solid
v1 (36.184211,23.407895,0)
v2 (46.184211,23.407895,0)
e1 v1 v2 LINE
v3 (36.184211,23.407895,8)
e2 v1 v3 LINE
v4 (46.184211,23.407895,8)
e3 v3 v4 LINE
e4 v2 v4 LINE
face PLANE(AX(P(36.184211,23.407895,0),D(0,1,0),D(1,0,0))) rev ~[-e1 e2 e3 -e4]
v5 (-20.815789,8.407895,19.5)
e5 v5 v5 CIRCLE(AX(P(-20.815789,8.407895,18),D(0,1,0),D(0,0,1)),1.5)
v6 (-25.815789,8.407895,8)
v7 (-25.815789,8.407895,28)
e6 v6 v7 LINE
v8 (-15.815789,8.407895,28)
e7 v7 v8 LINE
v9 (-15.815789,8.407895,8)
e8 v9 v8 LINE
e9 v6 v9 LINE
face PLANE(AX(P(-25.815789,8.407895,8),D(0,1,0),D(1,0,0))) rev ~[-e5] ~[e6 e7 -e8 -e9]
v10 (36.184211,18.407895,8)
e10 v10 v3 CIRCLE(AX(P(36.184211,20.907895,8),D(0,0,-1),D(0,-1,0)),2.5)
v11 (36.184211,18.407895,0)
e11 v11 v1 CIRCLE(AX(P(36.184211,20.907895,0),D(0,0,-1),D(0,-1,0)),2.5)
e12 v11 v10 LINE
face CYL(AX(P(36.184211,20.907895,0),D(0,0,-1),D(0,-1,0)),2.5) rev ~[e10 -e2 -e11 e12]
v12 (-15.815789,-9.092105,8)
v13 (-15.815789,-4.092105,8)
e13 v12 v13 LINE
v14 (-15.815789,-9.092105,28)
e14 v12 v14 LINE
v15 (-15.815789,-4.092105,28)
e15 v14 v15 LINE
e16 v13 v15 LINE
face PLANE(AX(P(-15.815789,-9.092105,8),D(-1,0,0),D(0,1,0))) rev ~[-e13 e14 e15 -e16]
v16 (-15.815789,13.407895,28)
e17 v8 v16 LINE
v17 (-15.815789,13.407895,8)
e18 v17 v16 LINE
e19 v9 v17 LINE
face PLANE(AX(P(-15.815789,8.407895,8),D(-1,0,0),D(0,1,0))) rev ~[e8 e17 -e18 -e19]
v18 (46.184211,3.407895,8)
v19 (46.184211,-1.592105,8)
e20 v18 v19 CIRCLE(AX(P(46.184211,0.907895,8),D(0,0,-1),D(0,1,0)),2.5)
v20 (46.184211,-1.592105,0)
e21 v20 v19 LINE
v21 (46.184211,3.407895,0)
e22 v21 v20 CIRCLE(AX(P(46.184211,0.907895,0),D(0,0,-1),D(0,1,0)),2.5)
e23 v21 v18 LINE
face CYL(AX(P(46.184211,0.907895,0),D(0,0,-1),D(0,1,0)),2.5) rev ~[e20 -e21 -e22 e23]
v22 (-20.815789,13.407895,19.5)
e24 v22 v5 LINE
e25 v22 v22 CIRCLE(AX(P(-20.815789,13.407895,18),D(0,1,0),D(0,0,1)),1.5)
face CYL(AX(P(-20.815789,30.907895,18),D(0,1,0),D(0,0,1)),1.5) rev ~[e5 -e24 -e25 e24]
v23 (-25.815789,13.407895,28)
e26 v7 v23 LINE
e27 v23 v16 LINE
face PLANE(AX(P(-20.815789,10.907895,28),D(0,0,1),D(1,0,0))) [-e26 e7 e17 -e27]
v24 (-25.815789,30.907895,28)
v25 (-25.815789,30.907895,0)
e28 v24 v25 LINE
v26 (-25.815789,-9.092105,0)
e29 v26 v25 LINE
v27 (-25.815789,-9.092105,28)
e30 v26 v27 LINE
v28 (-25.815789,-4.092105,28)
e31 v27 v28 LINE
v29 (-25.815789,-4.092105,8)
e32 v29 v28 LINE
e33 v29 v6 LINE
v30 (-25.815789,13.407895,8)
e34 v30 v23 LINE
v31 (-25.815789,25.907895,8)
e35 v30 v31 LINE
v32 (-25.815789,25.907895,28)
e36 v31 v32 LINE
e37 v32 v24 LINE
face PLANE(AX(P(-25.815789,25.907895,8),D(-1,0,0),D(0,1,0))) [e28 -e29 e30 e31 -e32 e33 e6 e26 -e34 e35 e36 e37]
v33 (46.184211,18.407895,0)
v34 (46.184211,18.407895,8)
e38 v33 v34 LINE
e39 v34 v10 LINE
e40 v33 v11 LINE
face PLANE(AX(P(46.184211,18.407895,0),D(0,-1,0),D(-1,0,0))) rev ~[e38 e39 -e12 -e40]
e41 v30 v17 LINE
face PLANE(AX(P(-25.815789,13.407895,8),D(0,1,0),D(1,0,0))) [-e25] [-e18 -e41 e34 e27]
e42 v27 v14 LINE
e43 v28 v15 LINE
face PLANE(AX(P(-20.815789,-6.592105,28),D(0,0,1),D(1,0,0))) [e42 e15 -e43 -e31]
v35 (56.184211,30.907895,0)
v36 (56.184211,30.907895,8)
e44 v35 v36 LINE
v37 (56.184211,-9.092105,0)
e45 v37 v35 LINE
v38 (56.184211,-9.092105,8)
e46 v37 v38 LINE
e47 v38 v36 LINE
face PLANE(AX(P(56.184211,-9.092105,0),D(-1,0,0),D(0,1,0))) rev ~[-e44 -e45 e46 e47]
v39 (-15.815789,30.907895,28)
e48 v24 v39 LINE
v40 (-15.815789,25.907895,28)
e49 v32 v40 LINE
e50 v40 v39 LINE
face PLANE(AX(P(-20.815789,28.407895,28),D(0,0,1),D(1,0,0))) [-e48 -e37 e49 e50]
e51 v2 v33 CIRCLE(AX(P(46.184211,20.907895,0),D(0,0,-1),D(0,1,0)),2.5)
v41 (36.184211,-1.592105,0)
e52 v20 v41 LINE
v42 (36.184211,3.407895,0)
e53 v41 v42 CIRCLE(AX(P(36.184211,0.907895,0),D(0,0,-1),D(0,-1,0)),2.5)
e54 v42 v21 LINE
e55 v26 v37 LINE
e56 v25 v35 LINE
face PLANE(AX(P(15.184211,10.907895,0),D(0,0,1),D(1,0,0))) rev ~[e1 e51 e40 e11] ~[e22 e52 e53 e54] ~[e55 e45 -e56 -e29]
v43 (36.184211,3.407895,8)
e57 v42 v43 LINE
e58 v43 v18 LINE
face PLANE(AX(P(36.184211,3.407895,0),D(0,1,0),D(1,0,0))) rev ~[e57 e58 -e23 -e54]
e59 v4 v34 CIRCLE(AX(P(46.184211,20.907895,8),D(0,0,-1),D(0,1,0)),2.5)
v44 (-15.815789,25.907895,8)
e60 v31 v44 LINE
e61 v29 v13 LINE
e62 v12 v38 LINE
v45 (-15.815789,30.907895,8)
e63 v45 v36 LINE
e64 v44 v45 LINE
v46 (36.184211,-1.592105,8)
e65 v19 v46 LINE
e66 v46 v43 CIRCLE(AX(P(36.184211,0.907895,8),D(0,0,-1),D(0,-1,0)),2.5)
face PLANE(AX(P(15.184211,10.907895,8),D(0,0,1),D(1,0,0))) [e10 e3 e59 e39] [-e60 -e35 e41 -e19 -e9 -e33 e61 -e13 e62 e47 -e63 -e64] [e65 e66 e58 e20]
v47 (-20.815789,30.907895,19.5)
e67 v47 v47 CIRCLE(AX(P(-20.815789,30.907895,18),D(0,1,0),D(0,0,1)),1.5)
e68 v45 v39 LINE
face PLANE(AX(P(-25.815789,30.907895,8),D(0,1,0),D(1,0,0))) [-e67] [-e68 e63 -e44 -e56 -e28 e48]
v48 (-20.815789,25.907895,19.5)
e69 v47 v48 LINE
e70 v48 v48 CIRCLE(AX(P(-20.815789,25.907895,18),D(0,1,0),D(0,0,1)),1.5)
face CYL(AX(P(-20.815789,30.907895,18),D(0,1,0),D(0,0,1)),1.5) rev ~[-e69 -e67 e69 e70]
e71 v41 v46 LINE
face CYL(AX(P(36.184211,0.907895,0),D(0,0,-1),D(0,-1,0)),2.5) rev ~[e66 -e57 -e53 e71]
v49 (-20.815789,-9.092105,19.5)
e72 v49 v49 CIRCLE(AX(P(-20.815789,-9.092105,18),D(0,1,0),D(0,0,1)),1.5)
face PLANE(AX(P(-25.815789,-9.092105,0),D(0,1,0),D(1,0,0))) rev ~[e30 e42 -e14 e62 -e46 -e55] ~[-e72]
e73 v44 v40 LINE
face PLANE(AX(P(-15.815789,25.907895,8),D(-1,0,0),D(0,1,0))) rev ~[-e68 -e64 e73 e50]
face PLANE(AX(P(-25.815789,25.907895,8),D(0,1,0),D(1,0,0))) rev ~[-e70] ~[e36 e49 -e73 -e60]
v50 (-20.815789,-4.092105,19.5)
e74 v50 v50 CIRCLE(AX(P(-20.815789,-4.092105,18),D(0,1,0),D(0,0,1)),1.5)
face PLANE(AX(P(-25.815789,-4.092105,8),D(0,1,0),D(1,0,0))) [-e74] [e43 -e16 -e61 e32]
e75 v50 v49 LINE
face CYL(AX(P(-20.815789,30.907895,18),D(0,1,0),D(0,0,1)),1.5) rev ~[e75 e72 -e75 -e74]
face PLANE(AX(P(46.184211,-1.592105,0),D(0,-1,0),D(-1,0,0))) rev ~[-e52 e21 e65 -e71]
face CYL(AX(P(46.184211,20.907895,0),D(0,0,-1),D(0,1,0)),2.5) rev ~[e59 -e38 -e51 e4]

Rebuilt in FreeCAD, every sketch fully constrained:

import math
import FreeCAD as App
import Part
import Sketcher

V = App.Vector

doc = App.newDocument("Part")
params = doc.addObject("Spreadsheet::Sheet", "Params")
for row, (alias, value) in enumerate([
    ("sketch1_radius", "2.5 mm"),
    ("sketch1_width", "82 mm"),
    ("sketch1_width2", "10 mm"),
    ("sketch1_height", "40 mm"),
    ("pad1_length", "8 mm"),
    ("sketch2_width", "10 mm"),
    ("sketch2_height", "5 mm"),
    ("pad2_length", "20 mm"),
    ("sketch3_diameter", "3 mm"),
    ("pocket1_length", "47 mm"),
], start=1):
    params.set(f"A{row}", alias)
    params.set(f"B{row}", "=" + value)
    params.setAlias(f"B{row}", alias)

body = doc.addObject("PartDesign::Body", "Body")

# Sketch on XY plane
sketch1 = doc.addObject("Sketcher::SketchObject", "Sketch")
body.addObject(sketch1)
sketch1.AttachmentSupport = (doc.XY_Plane, [""])
sketch1.MapMode = "FlatFace"
sketch1.addGeometry(Part.LineSegment(V(-25.8, 30.9, 0), V(-25.8, -9.1, 0)), False)
sketch1.addGeometry(Part.LineSegment(V(-25.8, -9.1, 0), V(56.2, -9.1, 0)), False)
sketch1.addGeometry(Part.LineSegment(V(56.2, -9.1, 0), V(56.2, 30.9, 0)), False)
sketch1.addGeometry(Part.LineSegment(V(56.2, 30.9, 0), V(-25.8, 30.9, 0)), False)
sketch1.addGeometry(Part.ArcOfCircle(Part.Circle(V(46.2, 0.9, 0), V(0, 0, 1), 2.5), math.radians(-90), math.radians(90)), False)
sketch1.addGeometry(Part.LineSegment(V(46.2, -1.6, 0), V(36.2, -1.6, 0)), False)
sketch1.addGeometry(Part.ArcOfCircle(Part.Circle(V(36.2, 0.9, 0), V(0, 0, 1), 2.5), math.radians(90), math.radians(270)), False)
sketch1.addGeometry(Part.LineSegment(V(36.2, 3.4, 0), V(46.2, 3.4, 0)), False)
sketch1.addGeometry(Part.ArcOfCircle(Part.Circle(V(46.2, 20.9, 0), V(0, 0, 1), 2.5), math.radians(-90), math.radians(90)), False)
sketch1.addGeometry(Part.LineSegment(V(46.2, 18.4, 0), V(36.2, 18.4, 0)), False)
sketch1.addGeometry(Part.ArcOfCircle(Part.Circle(V(36.2, 20.9, 0), V(0, 0, 1), 2.5), math.radians(90), math.radians(270)), False)
sketch1.addGeometry(Part.LineSegment(V(36.2, 23.4, 0), V(46.2, 23.4, 0)), False)
sketch1.addConstraint(Sketcher.Constraint("Coincident", 0, 2, 1, 1))
sketch1.addConstraint(Sketcher.Constraint("Coincident", 1, 2, 2, 1))
sketch1.addConstraint(Sketcher.Constraint("Coincident", 2, 2, 3, 1))
sketch1.addConstraint(Sketcher.Constraint("Coincident", 3, 2, 0, 1))
sketch1.addConstraint(Sketcher.Constraint("Tangent", 4, 1, 5, 1))
sketch1.addConstraint(Sketcher.Constraint("Tangent", 5, 2, 6, 2))
sketch1.addConstraint(Sketcher.Constraint("Tangent", 6, 1, 7, 1))
sketch1.addConstraint(Sketcher.Constraint("Tangent", 7, 2, 4, 2))
sketch1.addConstraint(Sketcher.Constraint("Tangent", 8, 1, 9, 1))
sketch1.addConstraint(Sketcher.Constraint("Tangent", 9, 2, 10, 2))
sketch1.addConstraint(Sketcher.Constraint("Tangent", 10, 1, 11, 1))
sketch1.addConstraint(Sketcher.Constraint("Tangent", 11, 2, 8, 2))
sketch1.addConstraint(Sketcher.Constraint("Vertical", 0))
sketch1.addConstraint(Sketcher.Constraint("Horizontal", 1))
sketch1.addConstraint(Sketcher.Constraint("Vertical", 2))
sketch1.addConstraint(Sketcher.Constraint("Horizontal", 3))
sketch1.addConstraint(Sketcher.Constraint("Horizontal", 5))
sketch1.addConstraint(Sketcher.Constraint("Horizontal", 7))
sketch1.addConstraint(Sketcher.Constraint("Horizontal", 9))
sketch1.addConstraint(Sketcher.Constraint("Horizontal", 11))
sketch1.addConstraint(Sketcher.Constraint("Equal", 6, 8))
sketch1.addConstraint(Sketcher.Constraint("Vertical", 4, 3, 8, 3))
sketch1.addConstraint(Sketcher.Constraint("Vertical", 6, 3, 10, 3))
sketch1.addConstraint(Sketcher.Constraint("Radius", 4, 2.5))
sketch1.addConstraint(Sketcher.Constraint("DistanceX", 1, 1, 1, 2, 82.0))
sketch1.addConstraint(Sketcher.Constraint("DistanceX", 5, 2, 5, 1, 10.0))
sketch1.addConstraint(Sketcher.Constraint("DistanceY", 0, 2, 0, 1, 40.0))
sketch1.addConstraint(Sketcher.Constraint("DistanceY", 4, 3, 8, 3, 20.0))
sketch1.addConstraint(Sketcher.Constraint("DistanceX", 0, 2, 6, 3, 62.0))
sketch1.addConstraint(Sketcher.Constraint("DistanceY", 0, 2, 6, 3, 10.0))
sketch1.addConstraint(Sketcher.Constraint("DistanceX", -1, 1, 4, 3, 46.184211))
sketch1.addConstraint(Sketcher.Constraint("DistanceY", -1, 1, 4, 3, 0.907895))
sketch1.setExpression("Constraints[23]", "Params.sketch1_radius")
sketch1.setExpression("Constraints[24]", "Params.sketch1_width")
sketch1.setExpression("Constraints[25]", "Params.sketch1_width2")
sketch1.setExpression("Constraints[26]", "Params.sketch1_height")
pad1 = doc.addObject("PartDesign::Pad", "Pad")
body.addObject(pad1)
pad1.Profile = sketch1
pad1.setExpression("Length", "Params.pad1_length")

# Sketch on XY plane
sketch2 = doc.addObject("Sketcher::SketchObject", "Sketch001")
body.addObject(sketch2)
sketch2.AttachmentSupport = (doc.XY_Plane, [""])
sketch2.MapMode = "FlatFace"
sketch2.AttachmentOffset = App.Placement(V(0, 0, 8), App.Rotation())
sketch2.addGeometry(Part.LineSegment(V(-26, 31, 0), V(-26, 26, 0)), False)
sketch2.addGeometry(Part.LineSegment(V(-26, 26, 0), V(-16, 26, 0)), False)
sketch2.addGeometry(Part.LineSegment(V(-16, 26, 0), V(-16, 31, 0)), False)
sketch2.addGeometry(Part.LineSegment(V(-16, 31, 0), V(-26, 31, 0)), False)
sketch2.addGeometry(Part.LineSegment(V(-26, -4, 0), V(-26, -9, 0)), False)
sketch2.addGeometry(Part.LineSegment(V(-26, -9, 0), V(-16, -9, 0)), False)
sketch2.addGeometry(Part.LineSegment(V(-16, -9, 0), V(-16, -4, 0)), False)
sketch2.addGeometry(Part.LineSegment(V(-16, -4, 0), V(-26, -4, 0)), False)
sketch2.addGeometry(Part.LineSegment(V(-26, 13, 0), V(-26, 8, 0)), False)
sketch2.addGeometry(Part.LineSegment(V(-26, 8, 0), V(-16, 8, 0)), False)
sketch2.addGeometry(Part.LineSegment(V(-16, 8, 0), V(-16, 13, 0)), False)
sketch2.addGeometry(Part.LineSegment(V(-16, 13, 0), V(-26, 13, 0)), False)
sketch2.addConstraint(Sketcher.Constraint("Coincident", 0, 2, 1, 1))
sketch2.addConstraint(Sketcher.Constraint("Coincident", 1, 2, 2, 1))
sketch2.addConstraint(Sketcher.Constraint("Coincident", 2, 2, 3, 1))
sketch2.addConstraint(Sketcher.Constraint("Coincident", 3, 2, 0, 1))
sketch2.addConstraint(Sketcher.Constraint("Coincident", 4, 2, 5, 1))
sketch2.addConstraint(Sketcher.Constraint("Coincident", 5, 2, 6, 1))
sketch2.addConstraint(Sketcher.Constraint("Coincident", 6, 2, 7, 1))
sketch2.addConstraint(Sketcher.Constraint("Coincident", 7, 2, 4, 1))
sketch2.addConstraint(Sketcher.Constraint("Coincident", 8, 2, 9, 1))
sketch2.addConstraint(Sketcher.Constraint("Coincident", 9, 2, 10, 1))
sketch2.addConstraint(Sketcher.Constraint("Coincident", 10, 2, 11, 1))
sketch2.addConstraint(Sketcher.Constraint("Coincident", 11, 2, 8, 1))
sketch2.addConstraint(Sketcher.Constraint("Vertical", 0))
sketch2.addConstraint(Sketcher.Constraint("Horizontal", 1))
sketch2.addConstraint(Sketcher.Constraint("Vertical", 2))
sketch2.addConstraint(Sketcher.Constraint("Horizontal", 3))
sketch2.addConstraint(Sketcher.Constraint("Vertical", 4))
sketch2.addConstraint(Sketcher.Constraint("Horizontal", 5))
sketch2.addConstraint(Sketcher.Constraint("Vertical", 6))
sketch2.addConstraint(Sketcher.Constraint("Horizontal", 7))
sketch2.addConstraint(Sketcher.Constraint("Vertical", 8))
sketch2.addConstraint(Sketcher.Constraint("Horizontal", 9))
sketch2.addConstraint(Sketcher.Constraint("Vertical", 10))
sketch2.addConstraint(Sketcher.Constraint("Horizontal", 11))
sketch2.addConstraint(Sketcher.Constraint("Vertical", 3, 2, 4, 2))
sketch2.addConstraint(Sketcher.Constraint("Vertical", 2, 2, 5, 2))
sketch2.addConstraint(Sketcher.Constraint("Vertical", 7, 2, 8, 2))
sketch2.addConstraint(Sketcher.Constraint("Vertical", 6, 2, 9, 2))
sketch2.addConstraint(Sketcher.Constraint("Equal", 2, 4))
sketch2.addConstraint(Sketcher.Constraint("Equal", 6, 8))
sketch2.addConstraint(Sketcher.Constraint("DistanceX", 1, 1, 1, 2, 10.0))
sketch2.addConstraint(Sketcher.Constraint("DistanceY", 0, 2, 0, 1, 5.0))
sketch2.addConstraint(Sketcher.Constraint("DistanceY", 4, 2, 0, 2, 35.0))
sketch2.addConstraint(Sketcher.Constraint("DistanceY", 7, 2, 8, 2, 12.5))
sketch2.addConstraint(Sketcher.Constraint("DistanceX", 0, 2, -1, 1, 25.815789))
sketch2.addConstraint(Sketcher.Constraint("DistanceY", -1, 1, 0, 2, 25.907895))
sketch2.setExpression("Constraints[30]", "Params.sketch2_width")
sketch2.setExpression("Constraints[31]", "Params.sketch2_height")
pad2 = doc.addObject("PartDesign::Pad", "Pad001")
body.addObject(pad2)
pad2.Profile = sketch2
pad2.setExpression("Length", "Params.pad2_length")

# Sketch on XZ plane
sketch3 = doc.addObject("Sketcher::SketchObject", "Sketch002")
body.addObject(sketch3)
sketch3.AttachmentSupport = (doc.XZ_Plane, [""])
sketch3.MapMode = "FlatFace"
sketch3.AttachmentOffset = App.Placement(V(0, 0, -30.907895), App.Rotation())
sketch3.addGeometry(Part.Circle(V(-20.8, 18, 0), V(0, 0, 1), 1.5), False)
sketch3.addConstraint(Sketcher.Constraint("Diameter", 0, 3.0))
sketch3.addConstraint(Sketcher.Constraint("DistanceY", -1, 1, 0, 3, 18.0))
sketch3.addConstraint(Sketcher.Constraint("DistanceX", 0, 3, -1, 1, 20.815789))
sketch3.setExpression("Constraints[0]", "Params.sketch3_diameter")
pocket1 = doc.addObject("PartDesign::Pocket", "Pocket")
body.addObject(pocket1)
pocket1.Profile = sketch3
pocket1.setExpression("Length", "Params.pocket1_length")
pocket1.Reversed = True

doc.recompute()
